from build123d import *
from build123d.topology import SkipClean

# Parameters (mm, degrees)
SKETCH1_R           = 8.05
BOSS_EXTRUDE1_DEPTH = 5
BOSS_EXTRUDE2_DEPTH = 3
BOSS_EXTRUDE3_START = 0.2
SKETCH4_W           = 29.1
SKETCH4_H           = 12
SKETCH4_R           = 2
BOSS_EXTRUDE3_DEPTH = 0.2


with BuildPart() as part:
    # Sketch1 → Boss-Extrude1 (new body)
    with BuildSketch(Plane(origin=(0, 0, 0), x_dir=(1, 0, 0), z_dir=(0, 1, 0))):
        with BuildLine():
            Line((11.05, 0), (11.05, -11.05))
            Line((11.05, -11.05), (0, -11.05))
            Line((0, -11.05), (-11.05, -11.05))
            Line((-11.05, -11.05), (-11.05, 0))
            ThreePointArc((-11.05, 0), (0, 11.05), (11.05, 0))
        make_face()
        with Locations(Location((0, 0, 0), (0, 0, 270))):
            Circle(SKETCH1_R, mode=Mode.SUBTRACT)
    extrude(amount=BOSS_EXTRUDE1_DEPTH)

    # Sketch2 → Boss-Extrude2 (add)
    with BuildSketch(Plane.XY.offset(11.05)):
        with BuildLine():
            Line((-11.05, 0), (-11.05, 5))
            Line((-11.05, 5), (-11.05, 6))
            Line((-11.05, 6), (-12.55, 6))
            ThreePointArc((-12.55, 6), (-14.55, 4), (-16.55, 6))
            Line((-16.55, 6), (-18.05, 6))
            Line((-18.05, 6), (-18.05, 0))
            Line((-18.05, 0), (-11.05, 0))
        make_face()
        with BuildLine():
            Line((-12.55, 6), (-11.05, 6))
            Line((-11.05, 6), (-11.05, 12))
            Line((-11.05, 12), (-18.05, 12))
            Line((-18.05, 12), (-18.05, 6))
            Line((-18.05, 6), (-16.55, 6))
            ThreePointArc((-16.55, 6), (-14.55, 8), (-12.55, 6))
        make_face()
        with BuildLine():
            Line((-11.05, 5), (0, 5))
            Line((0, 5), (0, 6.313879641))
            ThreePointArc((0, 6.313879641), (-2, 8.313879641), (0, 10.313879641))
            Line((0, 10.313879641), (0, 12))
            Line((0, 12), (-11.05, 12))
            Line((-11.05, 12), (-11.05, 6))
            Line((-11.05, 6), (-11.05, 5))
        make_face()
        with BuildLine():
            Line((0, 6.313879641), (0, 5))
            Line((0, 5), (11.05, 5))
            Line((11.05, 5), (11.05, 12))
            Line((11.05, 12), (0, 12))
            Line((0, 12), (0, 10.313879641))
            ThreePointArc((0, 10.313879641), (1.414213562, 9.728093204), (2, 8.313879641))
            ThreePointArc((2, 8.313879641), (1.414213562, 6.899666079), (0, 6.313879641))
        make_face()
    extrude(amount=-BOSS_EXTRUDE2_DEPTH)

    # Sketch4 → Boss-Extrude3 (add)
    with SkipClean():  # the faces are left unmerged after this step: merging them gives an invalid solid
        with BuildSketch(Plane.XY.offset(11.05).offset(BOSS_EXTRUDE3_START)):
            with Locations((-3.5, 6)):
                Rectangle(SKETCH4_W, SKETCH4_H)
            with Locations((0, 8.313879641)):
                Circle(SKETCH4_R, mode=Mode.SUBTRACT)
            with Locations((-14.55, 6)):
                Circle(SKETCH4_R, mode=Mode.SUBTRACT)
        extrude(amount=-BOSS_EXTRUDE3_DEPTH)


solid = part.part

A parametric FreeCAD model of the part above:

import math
import FreeCAD as App
import Part
import Sketcher
from FreeCAD import Vector


def add_polygon(sketch, points):
    """Adds a closed chain of lines whose ends are joined by coincident constraints."""
    first, n = sketch.GeometryCount, len(points)
    for a, b in zip(points, points[1:] + points[:1]):
        sketch.addGeometry(Part.LineSegment(App.Vector(*a, 0), App.Vector(*b, 0)), False)
    for i in range(n):
        sketch.addConstraint(Sketcher.Constraint("Coincident", first + i, 2, first + (i + 1) % n, 1))

doc = App.newDocument("Part")
body = doc.addObject("PartDesign::Body", "Body")

# Sketch on XZ plane
sketch1 = doc.addObject("Sketcher::SketchObject", "Sketch")
body.addObject(sketch1)
sketch1.AttachmentSupport = (doc.XZ_Plane, [""])
sketch1.MapMode = "FlatFace"
sketch1.addGeometry(Part.LineSegment(Vector(11, 11, 0), Vector(11, 0, 0)), False)
sketch1.addGeometry(Part.ArcOfCircle(Part.Circle(Vector(0, 0, 0), Vector(0, 0, 1), 11), math.radians(180), math.radians(360)), False)
sketch1.addGeometry(Part.LineSegment(Vector(-11, 0, 0), Vector(-11, 11, 0)), False)
sketch1.addGeometry(Part.LineSegment(Vector(-11, 11, 0), Vector(11, 11, 0)), False)
sketch1.addGeometry(Part.Circle(Vector(0, 0, 0), Vector(0, 0, 1), 8), False)
sketch1.addConstraint(Sketcher.Constraint("Tangent", 0, 2, 1, 2))
sketch1.addConstraint(Sketcher.Constraint("Tangent", 1, 1, 2, 1))
sketch1.addConstraint(Sketcher.Constraint("Coincident", 2, 2, 3, 1))
sketch1.addConstraint(Sketcher.Constraint("Coincident", 3, 2, 0, 1))
sketch1.addConstraint(Sketcher.Constraint("Vertical", 0))
sketch1.addConstraint(Sketcher.Constraint("Vertical", 2))
sketch1.addConstraint(Sketcher.Constraint("Horizontal", 3))
sketch1.addConstraint(Sketcher.Constraint("Coincident", 1, 3, -1, 1))
sketch1.addConstraint(Sketcher.Constraint("Coincident", 4, 3, -1, 1))
sketch1.addConstraint(Sketcher.Constraint("Diameter", 4, 16.1))
sketch1.addConstraint(Sketcher.Constraint("Radius", 1, 11.05))
sketch1.addConstraint(Sketcher.Constraint("DistanceY", 0, 2, 0, 1, 11.05))
pad1 = doc.addObject("PartDesign::Pad", "Pad")
body.addObject(pad1)
pad1.Profile = sketch1
pad1.Length = 5
pad1.Reversed = True

# Sketch on XY plane
sketch2 = doc.addObject("Sketcher::SketchObject", "Sketch001")
body.addObject(sketch2)
sketch2.AttachmentSupport = (doc.XY_Plane, [""])
sketch2.MapMode = "FlatFace"
sketch2.AttachmentOffset = App.Placement(Vector(0, 0, 11.05), App.Rotation())
add_polygon(sketch2, [(-11.1, 0), (-11.1, 5), (11.1, 5), (11.1, 12), (-18.1, 12), (-18.1, 0)])  # lines 0-5
sketch2.addGeometry(Part.ArcOfCircle(Part.Circle(Vector(0, 8.3, 0), Vector(0, 0, 1), 2), math.radians(90), math.radians(270)), False)  # 6
sketch2.addGeometry(Part.ArcOfCircle(Part.Circle(Vector(0, 8.3, 0), Vector(0, 0, 1), 2), math.radians(0), math.radians(90)), False)  # 7
sketch2.addGeometry(Part.ArcOfCircle(Part.Circle(Vector(0, 8.3, 0), Vector(0, 0, 1), 2), math.radians(-90), math.radians(0)), False)  # 8
sketch2.addGeometry(Part.Circle(Vector(-14.6, 6, 0), Vector(0, 0, 1), 2), False)  # 9
sketch2.addConstraint(Sketcher.Constraint("Tangent", 6, 1, 7, 2))
sketch2.addConstraint(Sketcher.Constraint("Tangent", 7, 1, 8, 2))
sketch2.addConstraint(Sketcher.Constraint("Tangent", 8, 1, 6, 2))
sketch2.addConstraint(Sketcher.Constraint("Vertical", 0))
sketch2.addConstraint(Sketcher.Constraint("Horizontal", 1))
sketch2.addConstraint(Sketcher.Constraint("Vertical", 2))
sketch2.addConstraint(Sketcher.Constraint("Horizontal", 3))
sketch2.addConstraint(Sketcher.Constraint("Vertical", 4))
sketch2.addConstraint(Sketcher.Constraint("Horizontal", 5))
sketch2.addConstraint(Sketcher.Constraint("Equal", 8, 9))
sketch2.addConstraint(Sketcher.Constraint("PointOnObject", 6, 3, -2))
sketch2.addConstraint(Sketcher.Constraint("PointOnObject", 4, 2, -1))
sketch2.addConstraint(Sketcher.Constraint("PointOnObject", 6, 1, -2))
sketch2.addConstraint(Sketcher.Constraint("PointOnObject", 8, 1, -2))
sketch2.addConstraint(Sketcher.Constraint("Horizontal", 8, 3, 7, 1))
sketch2.addConstraint(Sketcher.Constraint("Equal", 5, 2))
sketch2.addConstraint(Sketcher.Constraint("Diameter", 9, 4.0))
sketch2.addConstraint(Sketcher.Constraint("DistanceX", 5, 1, 5, 2, 7.0))
sketch2.addConstraint(Sketcher.Constraint("DistanceY", 0, 1, 0, 2, 5.0))
sketch2.addConstraint(Sketcher.Constraint("DistanceX", 1, 1, 1, 2, 22.1))
sketch2.addConstraint(Sketcher.Constraint("DistanceY", -1, 1, 9, 3, 6.0))
sketch2.addConstraint(Sketcher.Constraint("DistanceX", 9, 3, 0, 2, 3.5))
sketch2.addConstraint(Sketcher.Constraint("DistanceX", 9, 3, -1, 1, 14.55))
sketch2.addConstraint(Sketcher.Constraint("DistanceY", -1, 1, 6, 3, 8.31388))
pad2 = doc.addObject("PartDesign::Pad", "Pad001")
body.addObject(pad2)
pad2.Profile = sketch2
pad2.Length = 3
pad2.Reversed = True

# Sketch on XY plane
sketch3 = doc.addObject("Sketcher::SketchObject", "Sketch002")
body.addObject(sketch3)
sketch3.AttachmentSupport = (doc.XY_Plane, [""])
sketch3.MapMode = "FlatFace"
sketch3.AttachmentOffset = App.Placement(Vector(0, 0, 11.25), App.Rotation())
add_polygon(sketch3, [(-18.1, 12), (-18.1, 0), (11.1, 0), (11.1, 12)])  # lines 0-3
sketch3.addGeometry(Part.Circle(Vector(-14.6, 6, 0), Vector(0, 0, 1), 2), False)  # 4
sketch3.addGeometry(Part.Circle(Vector(0, 8.3, 0), Vector(0, 0, 1), 2), False)  # 5
sketch3.addConstraint(Sketcher.Constraint("Vertical", 0))
sketch3.addConstraint(Sketcher.Constraint("Horizontal", 1))
sketch3.addConstraint(Sketcher.Constraint("Vertical", 2))
sketch3.addConstraint(Sketcher.Constraint("Horizontal", 3))
sketch3.addConstraint(Sketcher.Constraint("Equal", 4, 5))
sketch3.addConstraint(Sketcher.Constraint("PointOnObject", 5, 3, -2))
sketch3.addConstraint(Sketcher.Constraint("PointOnObject", 0, 2, -1))
sketch3.addConstraint(Sketcher.Constraint("Diameter", 4, 4.0))
sketch3.addConstraint(Sketcher.Constraint("DistanceY", 0, 2, 0, 1, 12.0))
sketch3.addConstraint(Sketcher.Constraint("DistanceX", 1, 1, 1, 2, 29.1))
sketch3.addConstraint(Sketcher.Constraint("DistanceY", -1, 1, 4, 3, 6.0))
sketch3.addConstraint(Sketcher.Constraint("DistanceX", 0, 2, 4, 3, 3.5))
sketch3.addConstraint(Sketcher.Constraint("DistanceX", 4, 3, -1, 1, 14.55))
sketch3.addConstraint(Sketcher.Constraint("DistanceY", -1, 1, 5, 3, 8.31388))
pad3 = doc.addObject("PartDesign::Pad", "Pad002")
body.addObject(pad3)
pad3.Profile = sketch3
pad3.Length = 0.2
pad3.Reversed = True

doc.recompute()
